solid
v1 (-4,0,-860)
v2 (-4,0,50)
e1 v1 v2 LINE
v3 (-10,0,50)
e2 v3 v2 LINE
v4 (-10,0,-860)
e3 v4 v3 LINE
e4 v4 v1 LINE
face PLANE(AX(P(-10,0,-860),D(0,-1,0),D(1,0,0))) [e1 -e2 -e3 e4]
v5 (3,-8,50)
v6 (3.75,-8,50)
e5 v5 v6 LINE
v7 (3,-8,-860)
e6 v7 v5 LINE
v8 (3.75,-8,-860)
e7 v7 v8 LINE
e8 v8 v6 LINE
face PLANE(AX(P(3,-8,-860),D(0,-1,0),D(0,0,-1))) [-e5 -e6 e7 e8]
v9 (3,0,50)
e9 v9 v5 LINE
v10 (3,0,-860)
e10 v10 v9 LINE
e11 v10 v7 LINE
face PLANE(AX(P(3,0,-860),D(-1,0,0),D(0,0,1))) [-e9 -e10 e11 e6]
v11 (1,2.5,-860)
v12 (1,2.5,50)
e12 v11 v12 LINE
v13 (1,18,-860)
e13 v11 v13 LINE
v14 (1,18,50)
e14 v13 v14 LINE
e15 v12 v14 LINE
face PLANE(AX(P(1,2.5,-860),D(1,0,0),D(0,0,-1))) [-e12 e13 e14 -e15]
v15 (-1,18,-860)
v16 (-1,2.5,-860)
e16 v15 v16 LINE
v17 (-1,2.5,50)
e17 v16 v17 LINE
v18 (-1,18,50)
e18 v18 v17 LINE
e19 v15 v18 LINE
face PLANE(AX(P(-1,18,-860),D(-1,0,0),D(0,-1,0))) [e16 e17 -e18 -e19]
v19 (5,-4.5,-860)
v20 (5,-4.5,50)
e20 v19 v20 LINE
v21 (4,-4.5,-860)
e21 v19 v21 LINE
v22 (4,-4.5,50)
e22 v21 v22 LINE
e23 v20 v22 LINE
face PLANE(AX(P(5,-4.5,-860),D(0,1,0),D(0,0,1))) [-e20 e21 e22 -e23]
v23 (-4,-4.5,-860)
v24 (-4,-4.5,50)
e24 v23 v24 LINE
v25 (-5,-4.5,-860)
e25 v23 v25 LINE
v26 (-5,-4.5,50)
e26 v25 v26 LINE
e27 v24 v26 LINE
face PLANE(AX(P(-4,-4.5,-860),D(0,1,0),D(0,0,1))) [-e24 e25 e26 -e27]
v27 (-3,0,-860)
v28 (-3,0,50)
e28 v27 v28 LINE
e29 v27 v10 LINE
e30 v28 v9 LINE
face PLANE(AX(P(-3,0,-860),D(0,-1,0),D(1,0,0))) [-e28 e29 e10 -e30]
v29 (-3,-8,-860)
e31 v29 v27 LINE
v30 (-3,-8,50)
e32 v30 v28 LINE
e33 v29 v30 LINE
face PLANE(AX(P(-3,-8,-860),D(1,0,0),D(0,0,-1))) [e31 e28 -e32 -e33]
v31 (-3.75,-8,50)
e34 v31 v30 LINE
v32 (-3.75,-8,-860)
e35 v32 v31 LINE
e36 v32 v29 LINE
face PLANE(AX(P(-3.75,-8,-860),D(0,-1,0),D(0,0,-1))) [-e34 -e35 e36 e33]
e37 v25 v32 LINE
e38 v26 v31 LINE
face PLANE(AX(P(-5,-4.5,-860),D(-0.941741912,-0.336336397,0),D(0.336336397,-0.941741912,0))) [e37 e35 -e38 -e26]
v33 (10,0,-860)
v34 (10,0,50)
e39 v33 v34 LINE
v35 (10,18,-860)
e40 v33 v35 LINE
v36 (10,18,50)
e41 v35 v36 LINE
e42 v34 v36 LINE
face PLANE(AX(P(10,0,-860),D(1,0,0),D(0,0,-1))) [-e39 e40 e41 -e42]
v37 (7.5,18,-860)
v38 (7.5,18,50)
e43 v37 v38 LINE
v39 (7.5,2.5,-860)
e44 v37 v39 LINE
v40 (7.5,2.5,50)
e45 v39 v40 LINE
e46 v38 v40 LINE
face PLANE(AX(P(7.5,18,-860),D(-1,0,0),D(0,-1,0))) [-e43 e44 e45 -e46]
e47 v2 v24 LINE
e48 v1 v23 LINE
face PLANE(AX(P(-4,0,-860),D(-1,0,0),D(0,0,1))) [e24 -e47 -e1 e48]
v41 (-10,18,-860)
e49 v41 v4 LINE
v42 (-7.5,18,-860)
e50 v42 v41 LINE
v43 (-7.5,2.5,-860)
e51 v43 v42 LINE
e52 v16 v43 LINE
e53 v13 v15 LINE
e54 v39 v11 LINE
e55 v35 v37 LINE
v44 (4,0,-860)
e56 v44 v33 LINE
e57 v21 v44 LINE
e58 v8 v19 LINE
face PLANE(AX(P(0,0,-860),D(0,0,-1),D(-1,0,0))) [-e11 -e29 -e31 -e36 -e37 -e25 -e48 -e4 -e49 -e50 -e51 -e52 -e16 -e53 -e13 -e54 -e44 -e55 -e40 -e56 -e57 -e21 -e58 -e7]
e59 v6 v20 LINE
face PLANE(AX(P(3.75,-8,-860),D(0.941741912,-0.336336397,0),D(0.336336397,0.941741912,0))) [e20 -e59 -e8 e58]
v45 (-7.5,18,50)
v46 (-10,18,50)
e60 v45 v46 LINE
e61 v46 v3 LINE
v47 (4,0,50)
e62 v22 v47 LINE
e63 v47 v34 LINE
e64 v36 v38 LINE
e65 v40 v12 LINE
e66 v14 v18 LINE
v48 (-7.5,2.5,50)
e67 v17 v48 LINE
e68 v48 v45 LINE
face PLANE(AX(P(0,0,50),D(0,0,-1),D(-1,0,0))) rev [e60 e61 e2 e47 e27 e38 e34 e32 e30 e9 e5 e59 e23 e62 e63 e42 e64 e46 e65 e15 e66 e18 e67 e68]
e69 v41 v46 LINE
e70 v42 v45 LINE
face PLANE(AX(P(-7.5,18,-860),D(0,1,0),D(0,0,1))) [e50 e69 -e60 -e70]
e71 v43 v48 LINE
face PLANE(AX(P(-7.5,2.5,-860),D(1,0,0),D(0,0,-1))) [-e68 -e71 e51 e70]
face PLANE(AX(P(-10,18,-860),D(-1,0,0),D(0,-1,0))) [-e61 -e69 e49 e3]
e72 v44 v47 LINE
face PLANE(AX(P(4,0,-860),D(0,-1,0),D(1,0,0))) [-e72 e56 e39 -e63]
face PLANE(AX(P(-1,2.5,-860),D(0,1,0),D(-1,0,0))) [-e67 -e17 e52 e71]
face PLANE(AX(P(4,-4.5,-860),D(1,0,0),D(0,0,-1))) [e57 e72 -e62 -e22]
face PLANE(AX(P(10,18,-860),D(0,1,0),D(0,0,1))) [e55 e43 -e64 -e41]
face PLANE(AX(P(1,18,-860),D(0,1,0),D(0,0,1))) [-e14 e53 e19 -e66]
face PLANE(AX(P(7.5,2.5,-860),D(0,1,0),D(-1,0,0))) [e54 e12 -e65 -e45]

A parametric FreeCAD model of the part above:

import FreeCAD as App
import Part
import Sketcher

V = App.Vector
Q = App.Units.Quantity

doc = App.newDocument("Part")
body = doc.addObject("PartDesign::Body", "Body")

# Sketch on XY plane
sketch1 = doc.addObject("Sketcher::SketchObject", "Sketch")
body.addObject(sketch1)
sketch1.AttachmentSupport = (doc.XY_Plane, [""])
sketch1.MapMode = "FlatFace"
sketch1.AttachmentOffset = App.Placement(V(0, 0, 50), App.Rotation())
sketch1.addGeometry([
    Part.LineSegment(V(-1, 2.5, 0), V(-7.5, 2.5, 0)),  # 0
    Part.LineSegment(V(-7.5, 2.5, 0), V(-7.5, 18, 0)),  # 1
    Part.LineSegment(V(-7.5, 18, 0), V(-10, 18, 0)),  # 2
    Part.LineSegment(V(-10, 18, 0), V(-10, 0, 0)),  # 3
    Part.LineSegment(V(-10, 0, 0), V(-4, 0, 0)),  # 4
    Part.LineSegment(V(-4, 0, 0), V(-4, -4.5, 0)),  # 5
    Part.LineSegment(V(-4, -4.5, 0), V(-5, -4.5, 0)),  # 6
    Part.LineSegment(V(-5, -4.5, 0), V(-3.75, -8, 0)),  # 7
    Part.LineSegment(V(-3.75, -8, 0), V(-3, -8, 0)),  # 8
    Part.LineSegment(V(-3, -8, 0), V(-3, 0, 0)),  # 9
    Part.LineSegment(V(-3, 0, 0), V(3, 0, 0)),  # 10
    Part.LineSegment(V(3, 0, 0), V(3, -8, 0)),  # 11
    Part.LineSegment(V(3, -8, 0), V(3.75, -8, 0)),  # 12
    Part.LineSegment(V(3.75, -8, 0), V(5, -4.5, 0)),  # 13
    Part.LineSegment(V(5, -4.5, 0), V(4, -4.5, 0)),  # 14
    Part.LineSegment(V(4, -4.5, 0), V(4, 0, 0)),  # 15
    Part.LineSegment(V(4, 0, 0), V(10, 0, 0)),  # 16
    Part.LineSegment(V(10, 0, 0), V(10, 18, 0)),  # 17
    Part.LineSegment(V(10, 18, 0), V(7.5, 18, 0)),  # 18
    Part.LineSegment(V(7.5, 18, 0), V(7.5, 2.5, 0)),  # 19
    Part.LineSegment(V(7.5, 2.5, 0), V(1, 2.5, 0)),  # 20
    Part.LineSegment(V(1, 2.5, 0), V(1, 18, 0)),  # 21
    Part.LineSegment(V(1, 18, 0), V(-1, 18, 0)),  # 22
    Part.LineSegment(V(-1, 18, 0), V(-1, 2.5, 0)),  # 23
], False)
sketch1.addConstraint([
    Sketcher.Constraint("Coincident", 0, 2, 1, 1),
    Sketcher.Constraint("Coincident", 1, 2, 2, 1),
    Sketcher.Constraint("Coincident", 2, 2, 3, 1),
    Sketcher.Constraint("Coincident", 3, 2, 4, 1),
    Sketcher.Constraint("Coincident", 4, 2, 5, 1),
    Sketcher.Constraint("Coincident", 5, 2, 6, 1),
    Sketcher.Constraint("Coincident", 6, 2, 7, 1),
    Sketcher.Constraint("Coincident", 7, 2, 8, 1),
    Sketcher.Constraint("Coincident", 8, 2, 9, 1),
    Sketcher.Constraint("Coincident", 9, 2, 10, 1),
    Sketcher.Constraint("Coincident", 10, 2, 11, 1),
    Sketcher.Constraint("Coincident", 11, 2, 12, 1),
    Sketcher.Constraint("Coincident", 12, 2, 13, 1),
    Sketcher.Constraint("Coincident", 13, 2, 14, 1),
    Sketcher.Constraint("Coincident", 14, 2, 15, 1),
    Sketcher.Constraint("Coincident", 15, 2, 16, 1),
    Sketcher.Constraint("Coincident", 16, 2, 17, 1),
    Sketcher.Constraint("Coincident", 17, 2, 18, 1),
    Sketcher.Constraint("Coincident", 18, 2, 19, 1),
    Sketcher.Constraint("Coincident", 19, 2, 20, 1),
    Sketcher.Constraint("Coincident", 20, 2, 21, 1),
    Sketcher.Constraint("Coincident", 21, 2, 22, 1),
    Sketcher.Constraint("Coincident", 22, 2, 23, 1),
    Sketcher.Constraint("Coincident", 23, 2, 0, 1),
    Sketcher.Constraint("Horizontal", 0),
    Sketcher.Constraint("Vertical", 1),
    Sketcher.Constraint("Horizontal", 2),
    Sketcher.Constraint("Vertical", 3),
    Sketcher.Constraint("Horizontal", 4),
    Sketcher.Constraint("Vertical", 5),
    Sketcher.Constraint("Horizontal", 6),
    Sketcher.Constraint("Horizontal", 8),
    Sketcher.Constraint("Vertical", 9),
    Sketcher.Constraint("Horizontal", 10),
    Sketcher.Constraint("Vertical", 11),
    Sketcher.Constraint("Horizontal", 12),
    Sketcher.Constraint("Horizontal", 14),
    Sketcher.Constraint("Vertical", 15),
    Sketcher.Constraint("Horizontal", 16),
    Sketcher.Constraint("Vertical", 17),
    Sketcher.Constraint("Horizontal", 18),
    Sketcher.Constraint("Vertical", 19),
    Sketcher.Constraint("Horizontal", 20),
    Sketcher.Constraint("Vertical", 21),
    Sketcher.Constraint("Horizontal", 22),
    Sketcher.Constraint("Vertical", 23),
    Sketcher.Constraint("Symmetric", 9, 2, 10, 2, -1, 1),
    Sketcher.Constraint("Symmetric", 4, 2, 15, 2, -1, 1),
    Sketcher.Constraint("Symmetric", 7, 2, 12, 2, -2),
    Sketcher.Constraint("Symmetric", 6, 2, 13, 2, -2),
    Sketcher.Constraint("Symmetric", 3, 2, 16, 2, -2),
    Sketcher.Constraint("Symmetric", 1, 2, 18, 2, -2),
    Sketcher.Constraint("Symmetric", 20, 2, 23, 2, -2),
    Sketcher.Constraint("Horizontal", 18, 2, 21, 2),
    Sketcher.Constraint("Equal", 4, 10),
    Sketcher.Constraint("DistanceX", 4, 1, 4, 2, Q("6 mm")),
    Sketcher.Constraint("DistanceX", 6, 2, 6, 1, Q("1 mm")),
    Sketcher.Constraint("DistanceX", 22, 2, 22, 1, Q("2 mm")),
    Sketcher.Constraint("DistanceY", 3, 2, 3, 1, Q("18 mm")),
    Sketcher.Constraint("DistanceY", 9, 1, 9, 2, Q("8 mm")),
    Sketcher.Constraint("DistanceX", 0, 2, 0, 1, Q("6.5 mm")),
    Sketcher.Constraint("DistanceX", 2, 2, 2, 1, Q("2.5 mm")),
    Sketcher.Constraint("DistanceY", 1, 1, 1, 2, Q("15.5 mm")),
    Sketcher.Constraint("DistanceY", 5, 2, 5, 1, Q("4.5 mm")),
    Sketcher.Constraint("DistanceX", 8, 1, 8, 2, Q("0.75 mm")),
])
pad1 = doc.addObject("PartDesign::Pad", "Pad")
body.addObject(pad1)
pad1.Profile = sketch1
pad1.Length = 910
pad1.Reversed = True

doc.recompute()
